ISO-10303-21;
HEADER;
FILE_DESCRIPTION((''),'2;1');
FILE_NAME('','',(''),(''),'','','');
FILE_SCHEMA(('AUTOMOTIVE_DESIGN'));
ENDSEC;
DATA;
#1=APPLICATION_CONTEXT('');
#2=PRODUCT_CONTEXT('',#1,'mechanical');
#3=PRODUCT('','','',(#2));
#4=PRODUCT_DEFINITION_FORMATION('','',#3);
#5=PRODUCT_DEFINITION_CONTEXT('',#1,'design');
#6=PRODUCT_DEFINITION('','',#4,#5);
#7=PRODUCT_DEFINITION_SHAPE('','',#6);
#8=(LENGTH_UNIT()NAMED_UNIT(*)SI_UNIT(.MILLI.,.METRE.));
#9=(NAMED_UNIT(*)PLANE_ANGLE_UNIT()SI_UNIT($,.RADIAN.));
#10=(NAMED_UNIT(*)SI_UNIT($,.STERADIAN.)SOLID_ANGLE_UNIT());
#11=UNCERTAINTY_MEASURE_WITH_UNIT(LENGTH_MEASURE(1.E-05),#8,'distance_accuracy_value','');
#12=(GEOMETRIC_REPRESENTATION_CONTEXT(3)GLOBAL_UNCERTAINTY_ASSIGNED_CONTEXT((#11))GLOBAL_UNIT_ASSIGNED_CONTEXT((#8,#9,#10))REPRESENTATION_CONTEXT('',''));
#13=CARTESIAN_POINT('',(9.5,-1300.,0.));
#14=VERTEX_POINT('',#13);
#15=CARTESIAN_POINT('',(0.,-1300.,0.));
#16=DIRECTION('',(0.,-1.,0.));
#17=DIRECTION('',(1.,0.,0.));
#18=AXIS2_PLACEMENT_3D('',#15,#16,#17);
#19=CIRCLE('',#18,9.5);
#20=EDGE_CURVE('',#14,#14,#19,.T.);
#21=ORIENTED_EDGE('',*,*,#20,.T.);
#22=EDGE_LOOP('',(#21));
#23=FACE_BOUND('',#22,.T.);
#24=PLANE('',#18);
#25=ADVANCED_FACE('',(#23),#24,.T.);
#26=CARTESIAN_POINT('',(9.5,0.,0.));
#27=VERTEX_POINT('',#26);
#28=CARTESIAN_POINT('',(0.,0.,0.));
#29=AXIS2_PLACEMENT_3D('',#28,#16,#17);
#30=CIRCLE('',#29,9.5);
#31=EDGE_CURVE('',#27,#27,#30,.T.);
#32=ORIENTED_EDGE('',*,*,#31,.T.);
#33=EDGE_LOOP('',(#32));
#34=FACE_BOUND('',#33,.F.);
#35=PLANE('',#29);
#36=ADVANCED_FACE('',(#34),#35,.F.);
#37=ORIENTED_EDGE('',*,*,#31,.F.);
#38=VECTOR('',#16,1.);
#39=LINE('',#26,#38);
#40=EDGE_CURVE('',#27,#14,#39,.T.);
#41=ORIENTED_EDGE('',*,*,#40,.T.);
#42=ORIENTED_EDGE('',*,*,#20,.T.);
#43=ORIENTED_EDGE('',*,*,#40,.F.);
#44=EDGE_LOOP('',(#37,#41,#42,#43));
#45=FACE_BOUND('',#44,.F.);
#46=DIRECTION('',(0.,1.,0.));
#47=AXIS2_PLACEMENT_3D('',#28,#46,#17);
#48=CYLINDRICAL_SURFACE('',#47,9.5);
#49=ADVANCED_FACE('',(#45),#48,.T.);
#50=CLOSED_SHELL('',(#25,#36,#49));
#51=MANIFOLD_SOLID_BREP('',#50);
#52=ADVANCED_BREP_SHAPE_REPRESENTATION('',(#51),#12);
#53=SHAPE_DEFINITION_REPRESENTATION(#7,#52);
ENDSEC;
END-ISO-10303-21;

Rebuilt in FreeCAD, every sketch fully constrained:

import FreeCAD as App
import Part
import Sketcher

V = App.Vector

doc = App.newDocument("Part")
body = doc.addObject("PartDesign::Body", "Body")

sketch1 = body.newObject("Sketcher::SketchObject", "Sketch")
sketch1.AttachmentSupport = (doc.getObject("XZ_Plane"), [""])
sketch1.MapMode = "FlatFace"
sketch1.addGeometry(Part.Circle(V(0, 0, 0), V(0, 0, 1), 10), False)
sketch1.addConstraint(Sketcher.Constraint("Coincident", 0, 3, -1, 1))
sketch1.addConstraint(Sketcher.Constraint("Diameter", 0, 19.0))
pad1 = body.newObject("PartDesign::Pad", "Pad")
pad1.Profile = sketch1
pad1.Length = 1300

doc.recompute()
